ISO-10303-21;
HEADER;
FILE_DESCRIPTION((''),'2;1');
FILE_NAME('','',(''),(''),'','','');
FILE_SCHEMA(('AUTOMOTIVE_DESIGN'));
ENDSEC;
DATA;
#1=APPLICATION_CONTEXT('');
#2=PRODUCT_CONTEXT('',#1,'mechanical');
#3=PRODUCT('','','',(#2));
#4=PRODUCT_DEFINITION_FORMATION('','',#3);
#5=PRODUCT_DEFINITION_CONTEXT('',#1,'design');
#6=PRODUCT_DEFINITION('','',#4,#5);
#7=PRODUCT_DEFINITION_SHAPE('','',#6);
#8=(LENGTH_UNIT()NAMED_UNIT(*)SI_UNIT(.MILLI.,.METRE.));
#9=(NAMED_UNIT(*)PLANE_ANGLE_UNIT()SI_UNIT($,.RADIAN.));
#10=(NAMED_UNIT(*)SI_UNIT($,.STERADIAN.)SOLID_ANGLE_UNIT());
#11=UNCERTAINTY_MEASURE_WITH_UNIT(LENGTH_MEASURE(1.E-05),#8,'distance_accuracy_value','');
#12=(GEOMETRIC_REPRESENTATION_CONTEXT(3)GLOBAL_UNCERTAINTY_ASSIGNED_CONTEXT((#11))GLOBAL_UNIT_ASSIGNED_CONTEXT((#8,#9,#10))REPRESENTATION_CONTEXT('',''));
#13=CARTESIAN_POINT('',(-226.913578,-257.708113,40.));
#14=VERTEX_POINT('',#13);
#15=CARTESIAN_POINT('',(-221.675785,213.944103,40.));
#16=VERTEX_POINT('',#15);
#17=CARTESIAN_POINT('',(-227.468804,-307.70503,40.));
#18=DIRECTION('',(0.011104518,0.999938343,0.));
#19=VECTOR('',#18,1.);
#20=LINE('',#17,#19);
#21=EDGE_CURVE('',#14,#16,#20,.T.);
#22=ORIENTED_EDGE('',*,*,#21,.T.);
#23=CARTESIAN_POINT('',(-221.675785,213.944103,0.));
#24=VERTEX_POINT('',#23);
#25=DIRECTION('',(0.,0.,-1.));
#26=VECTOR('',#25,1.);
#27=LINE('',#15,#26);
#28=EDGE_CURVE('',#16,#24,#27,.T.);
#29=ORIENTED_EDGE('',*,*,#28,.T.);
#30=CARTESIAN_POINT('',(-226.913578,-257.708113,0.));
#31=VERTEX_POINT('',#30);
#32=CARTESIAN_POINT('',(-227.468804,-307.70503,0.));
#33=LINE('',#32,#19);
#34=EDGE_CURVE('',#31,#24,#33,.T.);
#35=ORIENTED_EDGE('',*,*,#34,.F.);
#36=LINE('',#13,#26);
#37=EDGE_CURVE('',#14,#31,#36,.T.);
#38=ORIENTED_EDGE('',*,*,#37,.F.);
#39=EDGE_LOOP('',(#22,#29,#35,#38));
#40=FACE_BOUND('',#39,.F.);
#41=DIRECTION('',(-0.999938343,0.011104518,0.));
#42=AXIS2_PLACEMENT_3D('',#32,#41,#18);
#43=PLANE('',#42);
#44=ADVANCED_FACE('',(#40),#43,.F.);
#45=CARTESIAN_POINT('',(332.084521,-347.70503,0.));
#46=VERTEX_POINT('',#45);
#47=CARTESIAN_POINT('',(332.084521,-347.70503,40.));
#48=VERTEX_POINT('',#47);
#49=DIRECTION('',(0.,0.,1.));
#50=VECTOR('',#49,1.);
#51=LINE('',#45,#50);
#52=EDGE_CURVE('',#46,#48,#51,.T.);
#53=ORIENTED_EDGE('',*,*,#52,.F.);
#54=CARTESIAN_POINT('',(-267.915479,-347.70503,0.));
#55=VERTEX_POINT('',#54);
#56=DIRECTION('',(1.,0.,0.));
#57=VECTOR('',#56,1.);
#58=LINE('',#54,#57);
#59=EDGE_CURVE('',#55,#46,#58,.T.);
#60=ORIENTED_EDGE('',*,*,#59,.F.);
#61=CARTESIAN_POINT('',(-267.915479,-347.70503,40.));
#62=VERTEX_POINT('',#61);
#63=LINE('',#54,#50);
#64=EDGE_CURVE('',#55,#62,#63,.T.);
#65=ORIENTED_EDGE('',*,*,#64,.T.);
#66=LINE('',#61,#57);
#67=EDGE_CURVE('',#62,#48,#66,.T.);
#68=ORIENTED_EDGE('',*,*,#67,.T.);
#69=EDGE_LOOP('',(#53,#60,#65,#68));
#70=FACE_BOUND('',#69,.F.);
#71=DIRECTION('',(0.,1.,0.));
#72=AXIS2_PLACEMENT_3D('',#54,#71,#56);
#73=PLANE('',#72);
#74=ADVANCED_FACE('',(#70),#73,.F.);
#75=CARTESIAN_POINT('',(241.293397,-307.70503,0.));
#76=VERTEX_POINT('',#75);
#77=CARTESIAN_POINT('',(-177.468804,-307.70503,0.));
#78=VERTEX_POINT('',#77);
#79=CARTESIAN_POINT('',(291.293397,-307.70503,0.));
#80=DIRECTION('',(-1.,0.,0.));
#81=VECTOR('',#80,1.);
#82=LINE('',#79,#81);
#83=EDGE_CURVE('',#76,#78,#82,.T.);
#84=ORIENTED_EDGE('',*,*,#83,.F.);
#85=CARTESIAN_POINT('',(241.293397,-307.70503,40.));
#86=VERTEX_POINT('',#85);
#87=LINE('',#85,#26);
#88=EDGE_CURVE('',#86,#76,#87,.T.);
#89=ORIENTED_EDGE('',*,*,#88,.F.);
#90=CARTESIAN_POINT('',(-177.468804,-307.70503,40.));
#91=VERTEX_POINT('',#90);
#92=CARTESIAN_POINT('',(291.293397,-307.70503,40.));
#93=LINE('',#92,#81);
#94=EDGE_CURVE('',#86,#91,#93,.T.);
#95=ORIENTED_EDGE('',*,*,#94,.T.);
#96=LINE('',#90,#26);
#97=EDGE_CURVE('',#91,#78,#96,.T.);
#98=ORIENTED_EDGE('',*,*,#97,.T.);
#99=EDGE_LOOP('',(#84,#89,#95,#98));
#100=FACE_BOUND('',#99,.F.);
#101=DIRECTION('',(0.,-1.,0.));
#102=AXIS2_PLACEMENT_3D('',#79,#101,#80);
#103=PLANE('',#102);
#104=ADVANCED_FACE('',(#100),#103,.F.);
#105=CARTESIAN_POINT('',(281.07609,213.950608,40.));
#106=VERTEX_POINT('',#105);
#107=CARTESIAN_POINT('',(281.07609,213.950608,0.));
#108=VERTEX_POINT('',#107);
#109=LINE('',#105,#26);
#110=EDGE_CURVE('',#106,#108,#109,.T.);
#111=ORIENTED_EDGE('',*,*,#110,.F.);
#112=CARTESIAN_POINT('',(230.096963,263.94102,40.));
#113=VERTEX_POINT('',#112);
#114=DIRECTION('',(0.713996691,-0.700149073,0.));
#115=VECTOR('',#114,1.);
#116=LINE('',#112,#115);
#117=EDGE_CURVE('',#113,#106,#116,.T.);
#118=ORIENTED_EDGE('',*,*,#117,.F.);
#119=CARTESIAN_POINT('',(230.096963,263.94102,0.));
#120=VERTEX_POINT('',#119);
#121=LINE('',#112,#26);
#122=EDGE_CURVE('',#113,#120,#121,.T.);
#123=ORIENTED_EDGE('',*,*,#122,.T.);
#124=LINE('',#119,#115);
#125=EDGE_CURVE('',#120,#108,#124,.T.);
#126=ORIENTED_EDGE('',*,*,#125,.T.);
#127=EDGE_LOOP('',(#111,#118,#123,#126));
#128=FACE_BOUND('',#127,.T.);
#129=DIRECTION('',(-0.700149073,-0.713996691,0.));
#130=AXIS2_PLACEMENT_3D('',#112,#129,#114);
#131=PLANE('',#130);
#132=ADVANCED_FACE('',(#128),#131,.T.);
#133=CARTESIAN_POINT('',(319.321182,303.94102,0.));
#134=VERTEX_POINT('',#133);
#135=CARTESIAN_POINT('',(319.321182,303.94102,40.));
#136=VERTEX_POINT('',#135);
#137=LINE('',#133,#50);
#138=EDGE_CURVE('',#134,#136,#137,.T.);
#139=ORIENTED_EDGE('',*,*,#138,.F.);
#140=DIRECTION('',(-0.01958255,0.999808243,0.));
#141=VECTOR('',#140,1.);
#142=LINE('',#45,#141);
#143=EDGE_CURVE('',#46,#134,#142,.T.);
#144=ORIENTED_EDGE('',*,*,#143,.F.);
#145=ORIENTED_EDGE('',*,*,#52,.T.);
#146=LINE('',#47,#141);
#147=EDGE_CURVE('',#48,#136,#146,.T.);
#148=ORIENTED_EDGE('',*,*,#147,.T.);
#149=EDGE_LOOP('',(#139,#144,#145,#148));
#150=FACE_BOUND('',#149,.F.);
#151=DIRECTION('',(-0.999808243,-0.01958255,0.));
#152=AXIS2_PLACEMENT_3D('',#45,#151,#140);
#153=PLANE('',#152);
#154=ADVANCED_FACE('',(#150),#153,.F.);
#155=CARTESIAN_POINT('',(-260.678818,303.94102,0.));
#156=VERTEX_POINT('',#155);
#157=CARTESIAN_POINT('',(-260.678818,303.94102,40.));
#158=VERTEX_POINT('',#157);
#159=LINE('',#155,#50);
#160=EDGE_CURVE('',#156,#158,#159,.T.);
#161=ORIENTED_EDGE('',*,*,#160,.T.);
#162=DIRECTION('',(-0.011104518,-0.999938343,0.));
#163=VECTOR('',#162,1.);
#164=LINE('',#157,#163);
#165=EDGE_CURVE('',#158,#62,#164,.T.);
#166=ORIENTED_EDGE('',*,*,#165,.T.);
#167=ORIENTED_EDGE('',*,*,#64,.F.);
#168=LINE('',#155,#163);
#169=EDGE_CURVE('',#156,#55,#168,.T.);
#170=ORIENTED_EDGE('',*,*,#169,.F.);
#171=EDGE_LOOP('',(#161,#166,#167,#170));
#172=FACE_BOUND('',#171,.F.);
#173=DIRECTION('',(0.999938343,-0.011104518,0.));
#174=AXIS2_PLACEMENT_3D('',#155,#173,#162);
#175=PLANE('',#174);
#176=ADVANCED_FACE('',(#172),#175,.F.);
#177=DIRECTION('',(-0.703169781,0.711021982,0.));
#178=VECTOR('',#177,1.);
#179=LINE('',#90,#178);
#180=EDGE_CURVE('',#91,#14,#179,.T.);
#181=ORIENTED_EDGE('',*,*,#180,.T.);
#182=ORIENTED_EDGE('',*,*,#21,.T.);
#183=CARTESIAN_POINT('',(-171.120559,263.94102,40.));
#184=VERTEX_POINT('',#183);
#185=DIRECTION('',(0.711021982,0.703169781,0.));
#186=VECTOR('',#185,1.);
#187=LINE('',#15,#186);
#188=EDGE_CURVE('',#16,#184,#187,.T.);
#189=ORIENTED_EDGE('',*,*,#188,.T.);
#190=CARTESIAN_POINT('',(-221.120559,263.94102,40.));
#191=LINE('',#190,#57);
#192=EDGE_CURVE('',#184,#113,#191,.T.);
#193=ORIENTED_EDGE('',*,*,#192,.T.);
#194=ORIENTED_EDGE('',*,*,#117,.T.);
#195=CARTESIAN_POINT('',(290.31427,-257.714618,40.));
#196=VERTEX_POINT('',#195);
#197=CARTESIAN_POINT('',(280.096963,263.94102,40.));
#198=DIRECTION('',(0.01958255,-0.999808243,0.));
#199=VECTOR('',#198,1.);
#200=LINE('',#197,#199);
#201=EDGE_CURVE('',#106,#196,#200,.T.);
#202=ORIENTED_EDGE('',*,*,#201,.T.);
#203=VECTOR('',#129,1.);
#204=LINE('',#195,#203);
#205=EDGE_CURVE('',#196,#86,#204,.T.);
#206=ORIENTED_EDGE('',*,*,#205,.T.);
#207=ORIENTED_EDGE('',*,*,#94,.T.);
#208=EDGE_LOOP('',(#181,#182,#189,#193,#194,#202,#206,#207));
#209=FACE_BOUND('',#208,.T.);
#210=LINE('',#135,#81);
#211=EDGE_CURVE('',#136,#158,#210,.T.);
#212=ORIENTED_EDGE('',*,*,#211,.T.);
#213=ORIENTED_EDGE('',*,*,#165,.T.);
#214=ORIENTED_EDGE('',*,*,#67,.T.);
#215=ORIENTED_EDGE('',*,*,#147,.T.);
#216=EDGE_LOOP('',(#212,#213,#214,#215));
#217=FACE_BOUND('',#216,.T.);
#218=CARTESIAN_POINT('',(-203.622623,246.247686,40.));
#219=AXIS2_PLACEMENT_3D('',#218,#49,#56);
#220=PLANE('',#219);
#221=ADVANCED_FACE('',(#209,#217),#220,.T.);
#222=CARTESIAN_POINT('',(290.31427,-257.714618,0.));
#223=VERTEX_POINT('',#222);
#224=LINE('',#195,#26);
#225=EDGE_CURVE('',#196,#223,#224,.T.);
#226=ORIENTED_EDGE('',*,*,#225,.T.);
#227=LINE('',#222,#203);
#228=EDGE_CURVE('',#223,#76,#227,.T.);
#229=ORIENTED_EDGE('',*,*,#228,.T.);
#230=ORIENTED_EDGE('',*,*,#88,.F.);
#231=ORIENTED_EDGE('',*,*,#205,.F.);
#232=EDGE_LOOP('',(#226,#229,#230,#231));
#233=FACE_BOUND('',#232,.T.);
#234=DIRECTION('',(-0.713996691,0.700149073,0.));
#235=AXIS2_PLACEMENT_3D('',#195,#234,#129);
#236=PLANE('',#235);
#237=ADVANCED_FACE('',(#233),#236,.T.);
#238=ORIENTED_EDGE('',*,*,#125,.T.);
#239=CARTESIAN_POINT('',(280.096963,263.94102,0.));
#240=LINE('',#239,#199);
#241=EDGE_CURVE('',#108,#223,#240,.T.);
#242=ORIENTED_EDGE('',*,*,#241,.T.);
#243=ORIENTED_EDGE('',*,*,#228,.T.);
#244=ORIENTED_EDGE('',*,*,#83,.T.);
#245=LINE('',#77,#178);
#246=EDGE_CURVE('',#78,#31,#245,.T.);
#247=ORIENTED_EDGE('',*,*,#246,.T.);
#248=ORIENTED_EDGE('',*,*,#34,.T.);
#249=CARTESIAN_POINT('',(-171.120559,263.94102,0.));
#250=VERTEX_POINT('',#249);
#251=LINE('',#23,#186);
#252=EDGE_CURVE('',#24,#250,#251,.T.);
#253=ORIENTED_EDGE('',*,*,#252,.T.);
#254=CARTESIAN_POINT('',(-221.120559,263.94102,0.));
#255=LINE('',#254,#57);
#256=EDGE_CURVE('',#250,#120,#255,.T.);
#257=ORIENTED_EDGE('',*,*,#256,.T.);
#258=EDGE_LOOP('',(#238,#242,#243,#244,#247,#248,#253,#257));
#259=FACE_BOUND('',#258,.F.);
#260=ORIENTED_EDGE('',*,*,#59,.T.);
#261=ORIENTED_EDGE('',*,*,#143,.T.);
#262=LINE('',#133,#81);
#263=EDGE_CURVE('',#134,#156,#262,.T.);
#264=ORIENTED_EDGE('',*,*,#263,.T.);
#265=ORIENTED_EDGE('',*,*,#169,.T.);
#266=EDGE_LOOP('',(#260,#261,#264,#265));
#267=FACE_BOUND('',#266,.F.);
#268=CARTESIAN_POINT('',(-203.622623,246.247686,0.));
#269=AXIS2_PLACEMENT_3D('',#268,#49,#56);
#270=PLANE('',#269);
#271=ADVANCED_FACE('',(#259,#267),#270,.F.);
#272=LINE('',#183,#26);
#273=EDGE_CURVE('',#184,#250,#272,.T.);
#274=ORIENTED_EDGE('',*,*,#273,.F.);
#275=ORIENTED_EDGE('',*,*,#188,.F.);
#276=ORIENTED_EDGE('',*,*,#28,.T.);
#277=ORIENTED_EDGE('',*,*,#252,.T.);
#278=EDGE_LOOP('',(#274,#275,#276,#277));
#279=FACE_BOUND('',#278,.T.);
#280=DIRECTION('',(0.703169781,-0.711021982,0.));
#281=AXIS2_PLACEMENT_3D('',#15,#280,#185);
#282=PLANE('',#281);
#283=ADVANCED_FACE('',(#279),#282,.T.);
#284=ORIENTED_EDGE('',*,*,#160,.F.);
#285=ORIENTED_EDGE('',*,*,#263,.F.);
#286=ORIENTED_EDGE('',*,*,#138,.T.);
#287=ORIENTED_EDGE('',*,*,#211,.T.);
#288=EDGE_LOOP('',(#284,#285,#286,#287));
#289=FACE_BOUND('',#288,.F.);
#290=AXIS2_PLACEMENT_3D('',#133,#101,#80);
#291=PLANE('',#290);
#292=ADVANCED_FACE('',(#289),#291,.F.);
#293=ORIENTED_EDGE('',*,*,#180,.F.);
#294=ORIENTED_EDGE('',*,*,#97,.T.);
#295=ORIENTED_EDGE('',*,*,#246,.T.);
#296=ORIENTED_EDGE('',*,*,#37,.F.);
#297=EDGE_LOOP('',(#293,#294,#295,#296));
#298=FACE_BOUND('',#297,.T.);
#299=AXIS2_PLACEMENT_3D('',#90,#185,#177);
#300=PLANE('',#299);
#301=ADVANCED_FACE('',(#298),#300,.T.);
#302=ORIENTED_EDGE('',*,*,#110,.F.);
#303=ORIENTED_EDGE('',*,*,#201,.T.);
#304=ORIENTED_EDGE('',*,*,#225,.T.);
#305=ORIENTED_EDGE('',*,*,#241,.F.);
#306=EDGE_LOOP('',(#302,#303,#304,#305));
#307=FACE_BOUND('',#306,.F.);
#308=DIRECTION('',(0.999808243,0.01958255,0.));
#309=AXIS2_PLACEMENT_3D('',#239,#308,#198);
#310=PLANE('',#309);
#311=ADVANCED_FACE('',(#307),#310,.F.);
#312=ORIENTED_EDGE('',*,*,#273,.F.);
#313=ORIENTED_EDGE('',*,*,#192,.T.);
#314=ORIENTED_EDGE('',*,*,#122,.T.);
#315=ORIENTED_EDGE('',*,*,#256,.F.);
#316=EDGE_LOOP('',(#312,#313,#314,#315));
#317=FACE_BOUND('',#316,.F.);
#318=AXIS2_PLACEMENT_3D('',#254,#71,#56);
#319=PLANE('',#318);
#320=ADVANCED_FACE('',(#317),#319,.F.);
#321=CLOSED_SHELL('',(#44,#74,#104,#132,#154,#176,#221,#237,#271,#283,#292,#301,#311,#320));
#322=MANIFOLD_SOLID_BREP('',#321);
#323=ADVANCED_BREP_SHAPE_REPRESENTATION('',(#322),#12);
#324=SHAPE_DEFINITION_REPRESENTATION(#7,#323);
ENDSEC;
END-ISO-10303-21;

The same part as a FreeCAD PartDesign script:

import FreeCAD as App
import Part
import Sketcher

V = App.Vector


def add_polygon(sketch, points):
    """Adds a closed chain of lines whose ends are joined by coincident constraints."""
    first, n = sketch.GeometryCount, len(points)
    for a, b in zip(points, points[1:] + points[:1]):
        sketch.addGeometry(Part.LineSegment(App.Vector(*a, 0), App.Vector(*b, 0)), False)
    for i in range(n):
        sketch.addConstraint(Sketcher.Constraint("Coincident", first + i, 2, first + (i + 1) % n, 1))

doc = App.newDocument("Part")
body = doc.addObject("PartDesign::Body", "Body")

# Sketch on XY plane
sketch1 = body.newObject("Sketcher::SketchObject", "Sketch")
sketch1.AttachmentSupport = (doc.getObject("XY_Plane"), [""])
sketch1.MapMode = "FlatFace"
add_polygon(sketch1, [(332, -348), (319, 304), (-261, 304), (-268, -348)])  # lines 0-3
add_polygon(sketch1, [(-227, -308), (-221, 264), (280, 264), (291, -308)])  # lines 4-7
sketch1.addConstraint(Sketcher.Constraint("Horizontal", 1))
sketch1.addConstraint(Sketcher.Constraint("Horizontal", 3))
sketch1.addConstraint(Sketcher.Constraint("Horizontal", 5))
sketch1.addConstraint(Sketcher.Constraint("Horizontal", 7))
sketch1.addConstraint(Sketcher.Constraint("Parallel", 2, 4))
sketch1.addConstraint(Sketcher.Constraint("Parallel", 0, 6))
sketch1.addConstraint(Sketcher.Constraint("DistanceX", 1, 2, 1, 1, 580.0))
sketch1.addConstraint(Sketcher.Constraint("DistanceX", 3, 1, 3, 2, 600.0))
sketch1.addConstraint(Sketcher.Constraint("DistanceY", 4, 2, 1, 2, 40.0))
sketch1.addConstraint(Sketcher.Constraint("DistanceY", 3, 2, 6, 2, 40.0))
sketch1.addConstraint(Sketcher.Constraint("DistanceX", 7, 2, 7, 1, 518.762202))
sketch1.addConstraint(Sketcher.Constraint("Distance", 4, 571.681298))
sketch1.addConstraint(Sketcher.Constraint("Distance", 0, 651.771031))
sketch1.addConstraint(Sketcher.Constraint("DistanceY", -1, 1, 0, 2, 303.94102))
sketch1.addConstraint(Sketcher.Constraint("DistanceX", 2, 2, -1, 1, 267.915479))
sketch1.addConstraint(Sketcher.Constraint("DistanceX", 4, 2, -1, 1, 221.120559))
pad1 = body.newObject("PartDesign::Pad", "Pad")
pad1.Profile = sketch1
pad1.Length = 40

# Sketch on XY plane
sketch2 = body.newObject("Sketcher::SketchObject", "Sketch001")
sketch2.AttachmentSupport = (doc.getObject("XY_Plane"), [""])
sketch2.MapMode = "FlatFace"
sketch2.AttachmentOffset = App.Placement(V(0, 0, 40), App.Rotation())
add_polygon(sketch2, [(-171, 264), (-221, 264), (-222, 214)])  # lines 0-2
add_polygon(sketch2, [(281, 214), (280, 264), (230, 264)])  # lines 3-5
add_polygon(sketch2, [(-227, -258), (-227, -308), (-177, -308)])  # lines 6-8
add_polygon(sketch2, [(241, -308), (291, -308), (290, -258)])  # lines 9-11
sketch2.addConstraint(Sketcher.Constraint("Horizontal", 0))
sketch2.addConstraint(Sketcher.Constraint("Horizontal", 4))
sketch2.addConstraint(Sketcher.Constraint("Horizontal", 7))
sketch2.addConstraint(Sketcher.Constraint("Horizontal", 9))
sketch2.addConstraint(Sketcher.Constraint("Parallel", 1, 6))
sketch2.addConstraint(Sketcher.Constraint("Perpendicular", 2, 8))
sketch2.addConstraint(Sketcher.Constraint("Parallel", 3, 10))
sketch2.addConstraint(Sketcher.Constraint("Perpendicular", 5, 11))
sketch2.addConstraint(Sketcher.Constraint("Horizontal", 2, 2, 3, 2))
sketch2.addConstraint(Sketcher.Constraint("Horizontal", 7, 2, 9, 2))
sketch2.addConstraint(Sketcher.Constraint("Equal", 0, 4))
sketch2.addConstraint(Sketcher.Constraint("Equal", 4, 7))
sketch2.addConstraint(Sketcher.Constraint("Equal", 7, 9))
sketch2.addConstraint(Sketcher.Constraint("Equal", 1, 3))
sketch2.addConstraint(Sketcher.Constraint("Equal", 3, 6))
sketch2.addConstraint(Sketcher.Constraint("DistanceX", 0, 2, 0, 1, 50.0))
sketch2.addConstraint(Sketcher.Constraint("Distance", 2, 71.102198))
sketch2.addConstraint(Sketcher.Constraint("DistanceX", 7, 2, 9, 2, 468.762202))
sketch2.addConstraint(Sketcher.Constraint("Distance", 5, 71.399669))
sketch2.addConstraint(Sketcher.Constraint("DistanceX", 0, 2, -1, 1, 221.120559))
sketch2.addConstraint(Sketcher.Constraint("DistanceY", -1, 1, 0, 2, 263.94102))
sketch2.addConstraint(Sketcher.Constraint("DistanceX", -1, 1, 5, 2, 281.07609))
sketch2.addConstraint(Sketcher.Constraint("DistanceY", 6, 2, -1, 1, 307.70503))
sketch2.addConstraint(Sketcher.Constraint("DistanceX", 8, 2, -1, 1, 226.913578))
pad2 = body.newObject("PartDesign::Pad", "Pad001")
pad2.Profile = sketch2
pad2.Length = 40
pad2.Reversed = True

doc.recompute()
